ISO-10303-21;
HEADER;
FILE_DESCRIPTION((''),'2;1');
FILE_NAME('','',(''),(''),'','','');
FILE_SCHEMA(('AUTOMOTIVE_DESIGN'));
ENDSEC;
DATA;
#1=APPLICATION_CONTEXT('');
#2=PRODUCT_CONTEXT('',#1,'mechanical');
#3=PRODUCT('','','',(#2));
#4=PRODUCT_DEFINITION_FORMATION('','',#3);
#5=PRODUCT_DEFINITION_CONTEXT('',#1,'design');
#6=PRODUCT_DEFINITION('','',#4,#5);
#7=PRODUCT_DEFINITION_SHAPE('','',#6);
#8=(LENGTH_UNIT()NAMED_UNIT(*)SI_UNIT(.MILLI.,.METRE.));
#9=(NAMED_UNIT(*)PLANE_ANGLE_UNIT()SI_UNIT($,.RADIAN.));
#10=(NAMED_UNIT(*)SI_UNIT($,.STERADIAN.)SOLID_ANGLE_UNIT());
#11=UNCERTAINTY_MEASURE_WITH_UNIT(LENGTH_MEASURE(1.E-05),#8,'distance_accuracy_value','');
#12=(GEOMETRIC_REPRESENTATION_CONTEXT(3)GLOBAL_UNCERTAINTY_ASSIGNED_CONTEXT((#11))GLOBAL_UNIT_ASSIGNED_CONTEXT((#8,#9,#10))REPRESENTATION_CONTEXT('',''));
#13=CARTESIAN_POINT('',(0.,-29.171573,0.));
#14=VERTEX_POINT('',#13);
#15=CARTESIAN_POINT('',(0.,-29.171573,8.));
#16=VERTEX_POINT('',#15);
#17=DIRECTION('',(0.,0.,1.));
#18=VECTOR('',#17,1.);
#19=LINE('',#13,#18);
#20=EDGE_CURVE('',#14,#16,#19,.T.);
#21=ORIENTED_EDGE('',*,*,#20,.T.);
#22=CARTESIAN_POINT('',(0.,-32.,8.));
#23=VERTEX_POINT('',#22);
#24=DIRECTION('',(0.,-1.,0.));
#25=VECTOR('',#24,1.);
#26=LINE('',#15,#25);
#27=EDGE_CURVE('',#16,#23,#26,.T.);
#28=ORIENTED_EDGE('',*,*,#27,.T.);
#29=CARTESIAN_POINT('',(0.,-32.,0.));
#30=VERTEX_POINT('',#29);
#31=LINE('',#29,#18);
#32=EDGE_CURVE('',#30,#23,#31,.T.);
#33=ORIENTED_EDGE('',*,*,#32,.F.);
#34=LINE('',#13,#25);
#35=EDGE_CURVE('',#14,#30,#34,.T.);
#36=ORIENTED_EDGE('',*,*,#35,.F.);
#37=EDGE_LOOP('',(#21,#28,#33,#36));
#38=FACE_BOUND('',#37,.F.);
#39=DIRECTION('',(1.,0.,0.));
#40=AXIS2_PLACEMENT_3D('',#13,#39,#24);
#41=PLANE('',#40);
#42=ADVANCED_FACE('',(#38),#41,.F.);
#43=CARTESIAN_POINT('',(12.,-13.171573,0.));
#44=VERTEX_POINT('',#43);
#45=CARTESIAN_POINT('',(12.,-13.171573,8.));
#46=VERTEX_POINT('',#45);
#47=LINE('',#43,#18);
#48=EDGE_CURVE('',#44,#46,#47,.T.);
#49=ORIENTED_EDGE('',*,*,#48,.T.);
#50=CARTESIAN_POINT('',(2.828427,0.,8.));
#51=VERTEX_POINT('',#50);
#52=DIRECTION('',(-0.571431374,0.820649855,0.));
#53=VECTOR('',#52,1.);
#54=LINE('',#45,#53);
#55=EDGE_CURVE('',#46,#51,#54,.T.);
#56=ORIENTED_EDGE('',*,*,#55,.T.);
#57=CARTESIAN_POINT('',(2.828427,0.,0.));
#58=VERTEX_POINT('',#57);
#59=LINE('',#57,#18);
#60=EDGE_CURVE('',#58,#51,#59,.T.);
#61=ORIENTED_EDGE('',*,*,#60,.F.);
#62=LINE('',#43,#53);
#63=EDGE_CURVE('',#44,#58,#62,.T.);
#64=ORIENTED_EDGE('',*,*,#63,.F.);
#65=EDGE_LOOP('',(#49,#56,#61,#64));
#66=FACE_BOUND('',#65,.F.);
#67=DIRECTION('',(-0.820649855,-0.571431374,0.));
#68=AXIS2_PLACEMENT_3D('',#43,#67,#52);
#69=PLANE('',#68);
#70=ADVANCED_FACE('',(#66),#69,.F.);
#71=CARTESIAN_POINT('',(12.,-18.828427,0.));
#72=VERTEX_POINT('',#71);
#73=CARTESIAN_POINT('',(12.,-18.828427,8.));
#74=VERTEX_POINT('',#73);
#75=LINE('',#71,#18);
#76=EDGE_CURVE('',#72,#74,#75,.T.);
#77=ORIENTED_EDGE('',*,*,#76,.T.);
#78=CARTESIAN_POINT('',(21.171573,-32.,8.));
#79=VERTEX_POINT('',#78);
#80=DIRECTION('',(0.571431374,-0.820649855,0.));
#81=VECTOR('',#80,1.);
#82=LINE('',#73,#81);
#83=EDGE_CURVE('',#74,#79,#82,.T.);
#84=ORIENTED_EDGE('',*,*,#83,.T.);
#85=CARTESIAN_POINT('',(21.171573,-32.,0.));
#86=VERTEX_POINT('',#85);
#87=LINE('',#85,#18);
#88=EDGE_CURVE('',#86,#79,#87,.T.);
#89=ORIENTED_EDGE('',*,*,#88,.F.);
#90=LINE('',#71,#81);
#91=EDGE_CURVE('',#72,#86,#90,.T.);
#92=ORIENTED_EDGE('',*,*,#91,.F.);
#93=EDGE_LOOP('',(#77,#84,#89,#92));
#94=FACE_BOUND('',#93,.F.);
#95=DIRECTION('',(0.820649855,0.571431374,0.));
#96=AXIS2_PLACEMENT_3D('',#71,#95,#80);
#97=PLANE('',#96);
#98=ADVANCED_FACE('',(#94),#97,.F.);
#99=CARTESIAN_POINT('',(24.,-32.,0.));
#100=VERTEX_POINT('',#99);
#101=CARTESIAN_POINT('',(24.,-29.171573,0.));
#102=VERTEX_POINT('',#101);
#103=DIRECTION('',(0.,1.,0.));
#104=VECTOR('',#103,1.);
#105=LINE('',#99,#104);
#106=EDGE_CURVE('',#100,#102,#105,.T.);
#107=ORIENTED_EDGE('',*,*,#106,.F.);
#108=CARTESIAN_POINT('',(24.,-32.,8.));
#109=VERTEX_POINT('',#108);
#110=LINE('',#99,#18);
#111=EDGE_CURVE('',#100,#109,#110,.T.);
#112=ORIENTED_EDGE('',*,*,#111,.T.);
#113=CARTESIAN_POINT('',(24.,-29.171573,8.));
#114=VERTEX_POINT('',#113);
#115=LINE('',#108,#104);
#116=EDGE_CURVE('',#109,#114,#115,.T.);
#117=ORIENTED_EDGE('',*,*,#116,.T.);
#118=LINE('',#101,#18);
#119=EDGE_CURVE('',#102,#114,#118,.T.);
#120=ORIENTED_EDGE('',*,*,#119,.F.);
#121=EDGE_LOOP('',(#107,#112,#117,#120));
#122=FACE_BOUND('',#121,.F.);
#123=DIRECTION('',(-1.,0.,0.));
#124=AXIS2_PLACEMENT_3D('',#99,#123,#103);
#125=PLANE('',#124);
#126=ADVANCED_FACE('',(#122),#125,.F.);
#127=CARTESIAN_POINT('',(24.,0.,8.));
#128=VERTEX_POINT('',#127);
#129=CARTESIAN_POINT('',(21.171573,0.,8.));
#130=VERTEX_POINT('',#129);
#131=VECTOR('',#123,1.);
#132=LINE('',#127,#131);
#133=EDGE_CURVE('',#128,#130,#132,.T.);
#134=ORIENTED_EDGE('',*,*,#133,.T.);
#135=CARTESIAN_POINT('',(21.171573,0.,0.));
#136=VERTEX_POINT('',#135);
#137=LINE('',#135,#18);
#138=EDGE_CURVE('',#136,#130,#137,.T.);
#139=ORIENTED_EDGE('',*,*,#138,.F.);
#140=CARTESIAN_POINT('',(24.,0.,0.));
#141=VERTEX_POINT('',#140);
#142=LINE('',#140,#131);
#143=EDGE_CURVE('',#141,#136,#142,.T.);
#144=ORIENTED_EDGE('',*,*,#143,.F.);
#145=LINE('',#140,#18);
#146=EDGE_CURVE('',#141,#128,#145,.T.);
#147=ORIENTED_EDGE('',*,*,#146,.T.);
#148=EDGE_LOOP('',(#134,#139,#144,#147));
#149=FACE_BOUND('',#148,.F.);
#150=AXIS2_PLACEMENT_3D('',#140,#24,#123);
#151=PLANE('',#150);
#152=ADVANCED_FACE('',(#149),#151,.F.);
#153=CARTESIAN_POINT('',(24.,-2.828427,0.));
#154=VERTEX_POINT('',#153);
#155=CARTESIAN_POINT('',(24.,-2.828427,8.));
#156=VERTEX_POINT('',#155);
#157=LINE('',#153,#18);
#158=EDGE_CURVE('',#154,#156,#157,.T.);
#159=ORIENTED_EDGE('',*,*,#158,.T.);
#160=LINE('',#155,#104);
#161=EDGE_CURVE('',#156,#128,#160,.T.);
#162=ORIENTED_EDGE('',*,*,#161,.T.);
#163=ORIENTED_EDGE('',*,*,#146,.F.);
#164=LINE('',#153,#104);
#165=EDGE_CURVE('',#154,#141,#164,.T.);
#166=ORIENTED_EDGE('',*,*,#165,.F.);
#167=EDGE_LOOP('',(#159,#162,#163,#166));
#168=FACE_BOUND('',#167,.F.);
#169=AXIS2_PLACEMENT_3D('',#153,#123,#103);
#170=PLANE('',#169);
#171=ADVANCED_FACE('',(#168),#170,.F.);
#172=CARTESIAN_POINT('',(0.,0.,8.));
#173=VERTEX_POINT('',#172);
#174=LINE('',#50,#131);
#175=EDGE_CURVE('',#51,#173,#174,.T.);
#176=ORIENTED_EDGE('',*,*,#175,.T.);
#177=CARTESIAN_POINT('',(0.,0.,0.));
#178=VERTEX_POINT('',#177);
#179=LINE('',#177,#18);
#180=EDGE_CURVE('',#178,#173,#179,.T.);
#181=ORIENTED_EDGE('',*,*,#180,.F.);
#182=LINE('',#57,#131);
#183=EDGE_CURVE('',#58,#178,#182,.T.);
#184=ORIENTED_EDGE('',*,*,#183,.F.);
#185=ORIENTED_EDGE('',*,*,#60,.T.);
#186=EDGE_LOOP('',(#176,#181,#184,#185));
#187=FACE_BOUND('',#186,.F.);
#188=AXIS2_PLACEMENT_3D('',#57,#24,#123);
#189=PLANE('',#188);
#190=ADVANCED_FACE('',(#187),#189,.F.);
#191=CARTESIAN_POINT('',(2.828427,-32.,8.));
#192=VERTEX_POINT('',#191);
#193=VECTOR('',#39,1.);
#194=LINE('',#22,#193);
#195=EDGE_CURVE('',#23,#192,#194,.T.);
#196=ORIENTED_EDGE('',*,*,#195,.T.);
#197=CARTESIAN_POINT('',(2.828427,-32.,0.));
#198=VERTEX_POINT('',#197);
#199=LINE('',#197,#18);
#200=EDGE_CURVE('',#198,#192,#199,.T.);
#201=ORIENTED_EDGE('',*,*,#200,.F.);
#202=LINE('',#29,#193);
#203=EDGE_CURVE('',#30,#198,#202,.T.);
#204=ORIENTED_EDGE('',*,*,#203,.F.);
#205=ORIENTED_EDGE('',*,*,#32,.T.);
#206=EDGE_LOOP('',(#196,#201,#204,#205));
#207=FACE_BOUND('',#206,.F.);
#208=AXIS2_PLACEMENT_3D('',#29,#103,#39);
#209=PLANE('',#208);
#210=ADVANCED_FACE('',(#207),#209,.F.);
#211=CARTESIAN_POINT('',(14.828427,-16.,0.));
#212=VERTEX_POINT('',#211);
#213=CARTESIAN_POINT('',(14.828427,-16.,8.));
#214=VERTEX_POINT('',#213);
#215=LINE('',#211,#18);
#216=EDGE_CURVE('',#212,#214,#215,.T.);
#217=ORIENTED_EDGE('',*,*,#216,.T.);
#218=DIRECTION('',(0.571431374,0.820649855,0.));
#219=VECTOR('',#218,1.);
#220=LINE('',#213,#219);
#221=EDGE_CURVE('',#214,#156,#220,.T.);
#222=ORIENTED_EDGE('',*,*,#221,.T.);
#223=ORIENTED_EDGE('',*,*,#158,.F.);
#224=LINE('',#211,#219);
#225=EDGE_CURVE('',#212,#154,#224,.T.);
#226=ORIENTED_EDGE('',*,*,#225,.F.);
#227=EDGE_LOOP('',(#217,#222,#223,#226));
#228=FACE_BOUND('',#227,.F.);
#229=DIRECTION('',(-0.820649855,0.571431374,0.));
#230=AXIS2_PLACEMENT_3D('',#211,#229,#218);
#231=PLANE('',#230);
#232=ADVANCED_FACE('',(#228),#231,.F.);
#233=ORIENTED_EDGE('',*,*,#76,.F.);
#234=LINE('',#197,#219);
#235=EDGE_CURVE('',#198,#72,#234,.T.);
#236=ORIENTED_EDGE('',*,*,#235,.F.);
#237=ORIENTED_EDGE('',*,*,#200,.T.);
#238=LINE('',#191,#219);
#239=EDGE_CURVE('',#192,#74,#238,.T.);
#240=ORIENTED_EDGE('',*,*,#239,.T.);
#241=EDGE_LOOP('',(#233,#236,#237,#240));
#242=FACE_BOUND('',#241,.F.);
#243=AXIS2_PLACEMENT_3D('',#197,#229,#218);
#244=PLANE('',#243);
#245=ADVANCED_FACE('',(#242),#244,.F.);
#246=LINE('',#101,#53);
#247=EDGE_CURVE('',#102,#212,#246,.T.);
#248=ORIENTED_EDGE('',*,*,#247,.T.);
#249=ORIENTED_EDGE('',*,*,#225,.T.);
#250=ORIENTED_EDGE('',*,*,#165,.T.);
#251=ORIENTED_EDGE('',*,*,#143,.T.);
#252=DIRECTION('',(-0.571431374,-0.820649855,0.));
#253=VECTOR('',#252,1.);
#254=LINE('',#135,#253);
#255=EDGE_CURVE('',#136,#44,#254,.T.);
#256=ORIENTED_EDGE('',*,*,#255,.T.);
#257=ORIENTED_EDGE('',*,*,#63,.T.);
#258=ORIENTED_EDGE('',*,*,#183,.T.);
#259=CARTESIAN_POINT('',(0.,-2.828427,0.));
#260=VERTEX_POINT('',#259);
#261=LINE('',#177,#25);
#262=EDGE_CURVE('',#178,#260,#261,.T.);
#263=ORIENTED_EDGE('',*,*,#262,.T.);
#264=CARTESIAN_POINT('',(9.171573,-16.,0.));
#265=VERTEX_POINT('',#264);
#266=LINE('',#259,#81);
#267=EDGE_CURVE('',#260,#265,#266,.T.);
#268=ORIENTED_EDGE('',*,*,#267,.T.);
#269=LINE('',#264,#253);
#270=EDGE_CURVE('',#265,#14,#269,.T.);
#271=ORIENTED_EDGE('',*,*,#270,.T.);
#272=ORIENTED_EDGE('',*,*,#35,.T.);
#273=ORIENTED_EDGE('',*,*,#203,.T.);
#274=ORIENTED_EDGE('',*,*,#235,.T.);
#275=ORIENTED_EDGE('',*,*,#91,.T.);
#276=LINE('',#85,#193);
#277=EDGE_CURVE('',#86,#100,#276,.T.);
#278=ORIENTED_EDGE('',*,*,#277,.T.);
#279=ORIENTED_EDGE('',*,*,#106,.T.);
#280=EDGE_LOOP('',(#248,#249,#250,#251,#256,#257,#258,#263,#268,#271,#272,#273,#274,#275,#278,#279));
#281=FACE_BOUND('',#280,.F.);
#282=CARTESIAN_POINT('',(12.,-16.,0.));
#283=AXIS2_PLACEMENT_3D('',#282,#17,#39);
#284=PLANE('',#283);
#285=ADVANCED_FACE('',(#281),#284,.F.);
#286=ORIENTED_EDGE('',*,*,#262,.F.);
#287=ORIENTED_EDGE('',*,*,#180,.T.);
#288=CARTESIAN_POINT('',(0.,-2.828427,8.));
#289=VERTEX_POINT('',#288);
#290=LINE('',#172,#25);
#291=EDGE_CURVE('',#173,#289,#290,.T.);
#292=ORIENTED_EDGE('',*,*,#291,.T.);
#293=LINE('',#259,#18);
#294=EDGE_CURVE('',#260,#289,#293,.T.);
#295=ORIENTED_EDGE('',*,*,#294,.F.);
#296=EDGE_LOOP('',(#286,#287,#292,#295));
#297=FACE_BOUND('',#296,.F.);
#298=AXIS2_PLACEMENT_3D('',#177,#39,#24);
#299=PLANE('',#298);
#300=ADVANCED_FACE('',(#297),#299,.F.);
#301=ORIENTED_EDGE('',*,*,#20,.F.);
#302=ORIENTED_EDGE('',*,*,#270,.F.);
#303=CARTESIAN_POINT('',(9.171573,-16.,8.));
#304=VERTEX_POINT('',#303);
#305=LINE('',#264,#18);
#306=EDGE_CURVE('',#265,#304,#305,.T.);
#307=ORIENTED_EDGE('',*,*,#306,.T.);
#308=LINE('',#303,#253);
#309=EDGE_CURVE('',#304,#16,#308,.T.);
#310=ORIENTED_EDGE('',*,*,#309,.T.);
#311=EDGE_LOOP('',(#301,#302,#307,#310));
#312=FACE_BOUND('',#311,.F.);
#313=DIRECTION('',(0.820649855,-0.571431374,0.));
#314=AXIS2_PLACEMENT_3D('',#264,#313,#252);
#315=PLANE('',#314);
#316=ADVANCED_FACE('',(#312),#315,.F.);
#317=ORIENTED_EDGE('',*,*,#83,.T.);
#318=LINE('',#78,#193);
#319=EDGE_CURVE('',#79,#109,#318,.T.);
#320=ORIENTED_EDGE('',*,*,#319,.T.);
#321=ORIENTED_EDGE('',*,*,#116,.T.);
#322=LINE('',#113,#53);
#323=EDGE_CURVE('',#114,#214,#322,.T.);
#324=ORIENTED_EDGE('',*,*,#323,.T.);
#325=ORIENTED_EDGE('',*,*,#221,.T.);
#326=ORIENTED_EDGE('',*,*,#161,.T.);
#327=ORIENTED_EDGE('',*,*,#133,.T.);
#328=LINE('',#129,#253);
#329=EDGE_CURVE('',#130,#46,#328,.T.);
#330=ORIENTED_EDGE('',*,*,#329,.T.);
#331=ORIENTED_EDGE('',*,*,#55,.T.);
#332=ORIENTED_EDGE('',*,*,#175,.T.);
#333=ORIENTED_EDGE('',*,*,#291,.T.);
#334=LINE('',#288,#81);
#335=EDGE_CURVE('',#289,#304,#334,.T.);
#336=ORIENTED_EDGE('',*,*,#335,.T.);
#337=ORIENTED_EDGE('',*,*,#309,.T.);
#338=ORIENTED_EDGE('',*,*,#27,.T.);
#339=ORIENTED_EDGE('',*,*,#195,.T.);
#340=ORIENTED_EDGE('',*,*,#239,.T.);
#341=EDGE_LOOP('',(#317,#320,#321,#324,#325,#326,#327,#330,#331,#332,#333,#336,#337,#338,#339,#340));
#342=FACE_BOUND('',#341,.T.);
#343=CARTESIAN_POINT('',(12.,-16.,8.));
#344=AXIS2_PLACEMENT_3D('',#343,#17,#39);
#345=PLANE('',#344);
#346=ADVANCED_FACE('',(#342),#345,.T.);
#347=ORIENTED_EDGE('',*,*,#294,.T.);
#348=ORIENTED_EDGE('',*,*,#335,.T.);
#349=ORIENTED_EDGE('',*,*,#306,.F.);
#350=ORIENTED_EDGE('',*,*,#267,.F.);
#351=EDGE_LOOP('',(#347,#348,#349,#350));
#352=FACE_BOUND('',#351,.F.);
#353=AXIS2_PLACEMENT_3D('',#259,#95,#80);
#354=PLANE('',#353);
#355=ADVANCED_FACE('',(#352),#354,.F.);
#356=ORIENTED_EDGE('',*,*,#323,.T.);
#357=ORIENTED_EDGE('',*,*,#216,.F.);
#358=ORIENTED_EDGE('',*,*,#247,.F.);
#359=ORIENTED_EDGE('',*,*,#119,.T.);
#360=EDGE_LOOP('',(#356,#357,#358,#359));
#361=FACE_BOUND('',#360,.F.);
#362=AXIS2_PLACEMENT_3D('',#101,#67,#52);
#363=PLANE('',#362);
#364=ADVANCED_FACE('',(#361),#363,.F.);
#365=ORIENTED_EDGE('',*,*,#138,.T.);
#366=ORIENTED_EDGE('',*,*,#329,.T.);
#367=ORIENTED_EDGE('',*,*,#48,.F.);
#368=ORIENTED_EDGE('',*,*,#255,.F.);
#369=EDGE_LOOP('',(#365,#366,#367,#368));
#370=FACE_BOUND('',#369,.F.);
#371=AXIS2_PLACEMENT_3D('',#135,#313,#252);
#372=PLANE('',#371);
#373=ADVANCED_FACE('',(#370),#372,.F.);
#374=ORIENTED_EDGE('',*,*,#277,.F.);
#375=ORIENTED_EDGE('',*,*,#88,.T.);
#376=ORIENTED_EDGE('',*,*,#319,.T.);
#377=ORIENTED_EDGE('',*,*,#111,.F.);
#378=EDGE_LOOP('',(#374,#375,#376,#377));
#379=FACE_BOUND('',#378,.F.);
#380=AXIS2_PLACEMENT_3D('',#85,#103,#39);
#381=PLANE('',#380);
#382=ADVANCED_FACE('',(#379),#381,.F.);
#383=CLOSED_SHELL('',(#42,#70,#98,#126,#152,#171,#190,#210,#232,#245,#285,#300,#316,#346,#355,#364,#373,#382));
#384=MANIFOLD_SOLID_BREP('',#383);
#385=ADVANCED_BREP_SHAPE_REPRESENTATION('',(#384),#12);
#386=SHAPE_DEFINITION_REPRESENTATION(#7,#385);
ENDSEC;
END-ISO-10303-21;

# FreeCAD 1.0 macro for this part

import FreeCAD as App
import Part
import Sketcher

V = App.Vector

doc = App.newDocument("Part")
body = doc.addObject("PartDesign::Body", "Body")

# Sketch on XY plane
sketch1 = doc.addObject("Sketcher::SketchObject", "Sketch")
body.addObject(sketch1)
sketch1.AttachmentSupport = (doc.XY_Plane, [""])
sketch1.MapMode = "FlatFace"
sketch1.addGeometry([
    Part.LineSegment(V(2.828427, 0, 0), V(0, 0, 0)),  # 0
    Part.LineSegment(V(0, 0, 0), V(0, -2.828427, 0)),  # 1
    Part.LineSegment(V(0, -2.828427, 0), V(9.171573, -16, 0)),  # 2
    Part.LineSegment(V(9.171573, -16, 0), V(0, -29.171573, 0)),  # 3
    Part.LineSegment(V(0, -29.171573, 0), V(0, -32, 0)),  # 4
    Part.LineSegment(V(0, -32, 0), V(2.828427, -32, 0)),  # 5
    Part.LineSegment(V(2.828427, -32, 0), V(12, -18.828427, 0)),  # 6
    Part.LineSegment(V(12, -18.828427, 0), V(21.171573, -32, 0)),  # 7
    Part.LineSegment(V(21.171573, -32, 0), V(24, -32, 0)),  # 8
    Part.LineSegment(V(24, -32, 0), V(24, -29.171573, 0)),  # 9
    Part.LineSegment(V(24, -29.171573, 0), V(14.828427, -16, 0)),  # 10
    Part.LineSegment(V(14.828427, -16, 0), V(24, -2.828427, 0)),  # 11
    Part.LineSegment(V(24, -2.828427, 0), V(24, 0, 0)),  # 12
    Part.LineSegment(V(24, 0, 0), V(21.171573, 0, 0)),  # 13
    Part.LineSegment(V(21.171573, 0, 0), V(12, -13.171573, 0)),  # 14
    Part.LineSegment(V(12, -13.171573, 0), V(2.828427, 0, 0)),  # 15
], False)
sketch1.addConstraint([
    Sketcher.Constraint("Coincident", 0, 2, 1, 1),
    Sketcher.Constraint("Coincident", 1, 2, 2, 1),
    Sketcher.Constraint("Coincident", 2, 2, 3, 1),
    Sketcher.Constraint("Coincident", 3, 2, 4, 1),
    Sketcher.Constraint("Coincident", 4, 2, 5, 1),
    Sketcher.Constraint("Coincident", 5, 2, 6, 1),
    Sketcher.Constraint("Coincident", 6, 2, 7, 1),
    Sketcher.Constraint("Coincident", 7, 2, 8, 1),
    Sketcher.Constraint("Coincident", 8, 2, 9, 1),
    Sketcher.Constraint("Coincident", 9, 2, 10, 1),
    Sketcher.Constraint("Coincident", 10, 2, 11, 1),
    Sketcher.Constraint("Coincident", 11, 2, 12, 1),
    Sketcher.Constraint("Coincident", 12, 2, 13, 1),
    Sketcher.Constraint("Coincident", 13, 2, 14, 1),
    Sketcher.Constraint("Coincident", 14, 2, 15, 1),
    Sketcher.Constraint("Coincident", 15, 2, 0, 1),
    Sketcher.Constraint("Horizontal", 0),
    Sketcher.Constraint("Vertical", 1),
    Sketcher.Constraint("Vertical", 4),
    Sketcher.Constraint("Horizontal", 5),
    Sketcher.Constraint("Horizontal", 8),
    Sketcher.Constraint("Vertical", 9),
    Sketcher.Constraint("Vertical", 12),
    Sketcher.Constraint("Horizontal", 13),
    Sketcher.Constraint("Coincident", 0, 2, -1, 1),
    Sketcher.Constraint("PointOnObject", 3, 2, -2),
    Sketcher.Constraint("PointOnObject", 12, 2, -1),
    Sketcher.Constraint("Parallel", 3, 6),
    Sketcher.Constraint("Parallel", 2, 7),
    Sketcher.Constraint("Parallel", 7, 10),
    Sketcher.Constraint("Parallel", 6, 11),
    Sketcher.Constraint("Parallel", 11, 14),
    Sketcher.Constraint("Parallel", 10, 15),
    Sketcher.Constraint("Horizontal", 5, 2, 7, 2),
    Sketcher.Constraint("Horizontal", 3, 2, 9, 2),
    Sketcher.Constraint("Horizontal", 2, 2, 10, 2),
    Sketcher.Constraint("Horizontal", 1, 2, 11, 2),
    Sketcher.Constraint("Vertical", 9, 2, 11, 2),
    Sketcher.Constraint("Vertical", 7, 2, 13, 2),
    Sketcher.Constraint("Vertical", 6, 2, 14, 2),
    Sketcher.Constraint("Equal", 5, 8),
    Sketcher.Constraint("Equal", 13, 1),
    Sketcher.Constraint("Equal", 1, 4),
    Sketcher.Constraint("Equal", 3, 6),
    Sketcher.Constraint("DistanceY", 2, 2, -1, 1, 16.0),
    Sketcher.Constraint("DistanceX", -1, 1, 6, 2, 12.0),
    Sketcher.Constraint("DistanceX", 0, 2, 0, 1, 2.828427),
])
pad1 = doc.addObject("PartDesign::Pad", "Pad")
body.addObject(pad1)
pad1.Profile = sketch1
pad1.Length = 8

doc.recompute()
